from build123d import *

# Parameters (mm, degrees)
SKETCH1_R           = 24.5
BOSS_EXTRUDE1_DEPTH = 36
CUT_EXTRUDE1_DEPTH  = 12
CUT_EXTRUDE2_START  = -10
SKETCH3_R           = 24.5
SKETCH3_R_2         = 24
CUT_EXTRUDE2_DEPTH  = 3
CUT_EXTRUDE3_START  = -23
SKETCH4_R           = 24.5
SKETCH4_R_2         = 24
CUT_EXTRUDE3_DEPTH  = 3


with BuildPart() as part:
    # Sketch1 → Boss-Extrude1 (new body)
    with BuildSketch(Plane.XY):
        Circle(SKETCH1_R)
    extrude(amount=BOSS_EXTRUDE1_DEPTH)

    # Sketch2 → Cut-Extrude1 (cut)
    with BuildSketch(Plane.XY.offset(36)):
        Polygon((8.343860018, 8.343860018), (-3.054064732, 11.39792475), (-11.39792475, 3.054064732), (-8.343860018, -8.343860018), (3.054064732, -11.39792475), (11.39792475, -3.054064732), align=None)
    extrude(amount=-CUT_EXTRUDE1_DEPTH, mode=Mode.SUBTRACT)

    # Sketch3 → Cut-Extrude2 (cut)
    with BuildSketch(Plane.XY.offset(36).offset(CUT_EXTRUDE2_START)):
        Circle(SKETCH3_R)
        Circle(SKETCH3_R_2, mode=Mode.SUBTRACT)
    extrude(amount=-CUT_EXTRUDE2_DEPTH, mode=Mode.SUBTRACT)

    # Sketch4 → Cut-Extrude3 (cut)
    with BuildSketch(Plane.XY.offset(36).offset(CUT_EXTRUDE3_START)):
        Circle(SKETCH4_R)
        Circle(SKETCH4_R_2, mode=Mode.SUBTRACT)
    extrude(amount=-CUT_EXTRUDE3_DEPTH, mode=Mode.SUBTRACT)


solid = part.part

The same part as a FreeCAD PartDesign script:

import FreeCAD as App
import Part
import Sketcher
from FreeCAD import Vector
Q = App.Units.Quantity


def add_polygon(sketch, points):
    """Adds a closed chain of lines whose ends are joined by coincident constraints."""
    first, n = sketch.GeometryCount, len(points)
    for a, b in zip(points, points[1:] + points[:1]):
        sketch.addGeometry(Part.LineSegment(App.Vector(*a, 0), App.Vector(*b, 0)), False)
    for i in range(n):
        sketch.addConstraint(Sketcher.Constraint("Coincident", first + i, 2, first + (i + 1) % n, 1))

doc = App.newDocument("Part")
body = doc.addObject("PartDesign::Body", "Body")

# Sketch on XY plane
sketch1 = body.newObject("Sketcher::SketchObject", "Sketch")
sketch1.AttachmentSupport = (doc.getObject("XY_Plane"), [""])
sketch1.MapMode = "FlatFace"
sketch1.addGeometry(Part.Circle(Vector(0, 0, 0), Vector(0, 0, 1), 24), False)
sketch1.addConstraint(Sketcher.Constraint("Coincident", 0, 3, -1, 1))
sketch1.addConstraint(Sketcher.Constraint("Diameter", 0, Q("49 mm")))
pad1 = body.newObject("PartDesign::Pad", "Pad")
pad1.Profile = sketch1
pad1.Length = 36

# Sketch on XY plane
sketch2 = body.newObject("Sketcher::SketchObject", "Sketch001")
sketch2.AttachmentSupport = (doc.getObject("XY_Plane"), [""])
sketch2.MapMode = "FlatFace"
sketch2.AttachmentOffset = App.Placement(Vector(0, 0, 36), App.Rotation())
add_polygon(sketch2, [(8, 8), (-3, 11), (-11, 3), (-8, -8), (3, -11), (11, -3)])  # lines 0-5
sketch2.addConstraint(Sketcher.Constraint("Symmetric", 0, 2, 3, 2, -1, 1))
sketch2.addConstraint(Sketcher.Constraint("Symmetric", 1, 2, 4, 2, -1, 1))
sketch2.addConstraint(Sketcher.Constraint("Symmetric", 2, 2, 5, 2, -1, 1))
sketch2.addConstraint(Sketcher.Constraint("Equal", 0, 1))
sketch2.addConstraint(Sketcher.Constraint("Equal", 1, 2))
sketch2.addConstraint(Sketcher.Constraint("Angle", 0, Q("165 deg")))
sketch2.addConstraint(Sketcher.Constraint("Angle", 1, Q("-135 deg")))
sketch2.addConstraint(Sketcher.Constraint("Angle", 2, Q("-75 deg")))
sketch2.addConstraint(Sketcher.Constraint("Distance", 0, Q("11.8 mm")))
pocket1 = body.newObject("PartDesign::Pocket", "Pocket")
pocket1.Profile = sketch2
pocket1.Length = 12

# Sketch on XY plane
sketch3 = body.newObject("Sketcher::SketchObject", "Sketch002")
sketch3.AttachmentSupport = (doc.getObject("XY_Plane"), [""])
sketch3.MapMode = "FlatFace"
sketch3.AttachmentOffset = App.Placement(Vector(0, 0, 26), App.Rotation())
sketch3.addGeometry(Part.Circle(Vector(0, 0, 0), Vector(0, 0, 1), 24), False)
sketch3.addGeometry(Part.Circle(Vector(0, 0, 0), Vector(0, 0, 1), 24), False)
sketch3.addConstraint(Sketcher.Constraint("Coincident", 0, 3, -1, 1))
sketch3.addConstraint(Sketcher.Constraint("Coincident", 1, 3, -1, 1))
sketch3.addConstraint(Sketcher.Constraint("Diameter", 0, Q("49 mm")))
sketch3.addConstraint(Sketcher.Constraint("Diameter", 1, Q("48 mm")))
pocket2 = body.newObject("PartDesign::Pocket", "Pocket001")
pocket2.Profile = sketch3
pocket2.Length = 3

# Sketch on XY plane
sketch4 = body.newObject("Sketcher::SketchObject", "Sketch003")
sketch4.AttachmentSupport = (doc.getObject("XY_Plane"), [""])
sketch4.MapMode = "FlatFace"
sketch4.AttachmentOffset = App.Placement(Vector(0, 0, 13), App.Rotation())
sketch4.addGeometry(Part.Circle(Vector(0, 0, 0), Vector(0, 0, 1), 24), False)
sketch4.addGeometry(Part.Circle(Vector(0, 0, 0), Vector(0, 0, 1), 24), False)
sketch4.addConstraint(Sketcher.Constraint("Coincident", 0, 3, -1, 1))
sketch4.addConstraint(Sketcher.Constraint("Coincident", 1, 3, -1, 1))
sketch4.addConstraint(Sketcher.Constraint("Diameter", 0, Q("49 mm")))
sketch4.addConstraint(Sketcher.Constraint("Diameter", 1, Q("48 mm")))
pocket3 = body.newObject("PartDesign::Pocket", "Pocket002")
pocket3.Profile = sketch4
pocket3.Length = 3

doc.recompute()
